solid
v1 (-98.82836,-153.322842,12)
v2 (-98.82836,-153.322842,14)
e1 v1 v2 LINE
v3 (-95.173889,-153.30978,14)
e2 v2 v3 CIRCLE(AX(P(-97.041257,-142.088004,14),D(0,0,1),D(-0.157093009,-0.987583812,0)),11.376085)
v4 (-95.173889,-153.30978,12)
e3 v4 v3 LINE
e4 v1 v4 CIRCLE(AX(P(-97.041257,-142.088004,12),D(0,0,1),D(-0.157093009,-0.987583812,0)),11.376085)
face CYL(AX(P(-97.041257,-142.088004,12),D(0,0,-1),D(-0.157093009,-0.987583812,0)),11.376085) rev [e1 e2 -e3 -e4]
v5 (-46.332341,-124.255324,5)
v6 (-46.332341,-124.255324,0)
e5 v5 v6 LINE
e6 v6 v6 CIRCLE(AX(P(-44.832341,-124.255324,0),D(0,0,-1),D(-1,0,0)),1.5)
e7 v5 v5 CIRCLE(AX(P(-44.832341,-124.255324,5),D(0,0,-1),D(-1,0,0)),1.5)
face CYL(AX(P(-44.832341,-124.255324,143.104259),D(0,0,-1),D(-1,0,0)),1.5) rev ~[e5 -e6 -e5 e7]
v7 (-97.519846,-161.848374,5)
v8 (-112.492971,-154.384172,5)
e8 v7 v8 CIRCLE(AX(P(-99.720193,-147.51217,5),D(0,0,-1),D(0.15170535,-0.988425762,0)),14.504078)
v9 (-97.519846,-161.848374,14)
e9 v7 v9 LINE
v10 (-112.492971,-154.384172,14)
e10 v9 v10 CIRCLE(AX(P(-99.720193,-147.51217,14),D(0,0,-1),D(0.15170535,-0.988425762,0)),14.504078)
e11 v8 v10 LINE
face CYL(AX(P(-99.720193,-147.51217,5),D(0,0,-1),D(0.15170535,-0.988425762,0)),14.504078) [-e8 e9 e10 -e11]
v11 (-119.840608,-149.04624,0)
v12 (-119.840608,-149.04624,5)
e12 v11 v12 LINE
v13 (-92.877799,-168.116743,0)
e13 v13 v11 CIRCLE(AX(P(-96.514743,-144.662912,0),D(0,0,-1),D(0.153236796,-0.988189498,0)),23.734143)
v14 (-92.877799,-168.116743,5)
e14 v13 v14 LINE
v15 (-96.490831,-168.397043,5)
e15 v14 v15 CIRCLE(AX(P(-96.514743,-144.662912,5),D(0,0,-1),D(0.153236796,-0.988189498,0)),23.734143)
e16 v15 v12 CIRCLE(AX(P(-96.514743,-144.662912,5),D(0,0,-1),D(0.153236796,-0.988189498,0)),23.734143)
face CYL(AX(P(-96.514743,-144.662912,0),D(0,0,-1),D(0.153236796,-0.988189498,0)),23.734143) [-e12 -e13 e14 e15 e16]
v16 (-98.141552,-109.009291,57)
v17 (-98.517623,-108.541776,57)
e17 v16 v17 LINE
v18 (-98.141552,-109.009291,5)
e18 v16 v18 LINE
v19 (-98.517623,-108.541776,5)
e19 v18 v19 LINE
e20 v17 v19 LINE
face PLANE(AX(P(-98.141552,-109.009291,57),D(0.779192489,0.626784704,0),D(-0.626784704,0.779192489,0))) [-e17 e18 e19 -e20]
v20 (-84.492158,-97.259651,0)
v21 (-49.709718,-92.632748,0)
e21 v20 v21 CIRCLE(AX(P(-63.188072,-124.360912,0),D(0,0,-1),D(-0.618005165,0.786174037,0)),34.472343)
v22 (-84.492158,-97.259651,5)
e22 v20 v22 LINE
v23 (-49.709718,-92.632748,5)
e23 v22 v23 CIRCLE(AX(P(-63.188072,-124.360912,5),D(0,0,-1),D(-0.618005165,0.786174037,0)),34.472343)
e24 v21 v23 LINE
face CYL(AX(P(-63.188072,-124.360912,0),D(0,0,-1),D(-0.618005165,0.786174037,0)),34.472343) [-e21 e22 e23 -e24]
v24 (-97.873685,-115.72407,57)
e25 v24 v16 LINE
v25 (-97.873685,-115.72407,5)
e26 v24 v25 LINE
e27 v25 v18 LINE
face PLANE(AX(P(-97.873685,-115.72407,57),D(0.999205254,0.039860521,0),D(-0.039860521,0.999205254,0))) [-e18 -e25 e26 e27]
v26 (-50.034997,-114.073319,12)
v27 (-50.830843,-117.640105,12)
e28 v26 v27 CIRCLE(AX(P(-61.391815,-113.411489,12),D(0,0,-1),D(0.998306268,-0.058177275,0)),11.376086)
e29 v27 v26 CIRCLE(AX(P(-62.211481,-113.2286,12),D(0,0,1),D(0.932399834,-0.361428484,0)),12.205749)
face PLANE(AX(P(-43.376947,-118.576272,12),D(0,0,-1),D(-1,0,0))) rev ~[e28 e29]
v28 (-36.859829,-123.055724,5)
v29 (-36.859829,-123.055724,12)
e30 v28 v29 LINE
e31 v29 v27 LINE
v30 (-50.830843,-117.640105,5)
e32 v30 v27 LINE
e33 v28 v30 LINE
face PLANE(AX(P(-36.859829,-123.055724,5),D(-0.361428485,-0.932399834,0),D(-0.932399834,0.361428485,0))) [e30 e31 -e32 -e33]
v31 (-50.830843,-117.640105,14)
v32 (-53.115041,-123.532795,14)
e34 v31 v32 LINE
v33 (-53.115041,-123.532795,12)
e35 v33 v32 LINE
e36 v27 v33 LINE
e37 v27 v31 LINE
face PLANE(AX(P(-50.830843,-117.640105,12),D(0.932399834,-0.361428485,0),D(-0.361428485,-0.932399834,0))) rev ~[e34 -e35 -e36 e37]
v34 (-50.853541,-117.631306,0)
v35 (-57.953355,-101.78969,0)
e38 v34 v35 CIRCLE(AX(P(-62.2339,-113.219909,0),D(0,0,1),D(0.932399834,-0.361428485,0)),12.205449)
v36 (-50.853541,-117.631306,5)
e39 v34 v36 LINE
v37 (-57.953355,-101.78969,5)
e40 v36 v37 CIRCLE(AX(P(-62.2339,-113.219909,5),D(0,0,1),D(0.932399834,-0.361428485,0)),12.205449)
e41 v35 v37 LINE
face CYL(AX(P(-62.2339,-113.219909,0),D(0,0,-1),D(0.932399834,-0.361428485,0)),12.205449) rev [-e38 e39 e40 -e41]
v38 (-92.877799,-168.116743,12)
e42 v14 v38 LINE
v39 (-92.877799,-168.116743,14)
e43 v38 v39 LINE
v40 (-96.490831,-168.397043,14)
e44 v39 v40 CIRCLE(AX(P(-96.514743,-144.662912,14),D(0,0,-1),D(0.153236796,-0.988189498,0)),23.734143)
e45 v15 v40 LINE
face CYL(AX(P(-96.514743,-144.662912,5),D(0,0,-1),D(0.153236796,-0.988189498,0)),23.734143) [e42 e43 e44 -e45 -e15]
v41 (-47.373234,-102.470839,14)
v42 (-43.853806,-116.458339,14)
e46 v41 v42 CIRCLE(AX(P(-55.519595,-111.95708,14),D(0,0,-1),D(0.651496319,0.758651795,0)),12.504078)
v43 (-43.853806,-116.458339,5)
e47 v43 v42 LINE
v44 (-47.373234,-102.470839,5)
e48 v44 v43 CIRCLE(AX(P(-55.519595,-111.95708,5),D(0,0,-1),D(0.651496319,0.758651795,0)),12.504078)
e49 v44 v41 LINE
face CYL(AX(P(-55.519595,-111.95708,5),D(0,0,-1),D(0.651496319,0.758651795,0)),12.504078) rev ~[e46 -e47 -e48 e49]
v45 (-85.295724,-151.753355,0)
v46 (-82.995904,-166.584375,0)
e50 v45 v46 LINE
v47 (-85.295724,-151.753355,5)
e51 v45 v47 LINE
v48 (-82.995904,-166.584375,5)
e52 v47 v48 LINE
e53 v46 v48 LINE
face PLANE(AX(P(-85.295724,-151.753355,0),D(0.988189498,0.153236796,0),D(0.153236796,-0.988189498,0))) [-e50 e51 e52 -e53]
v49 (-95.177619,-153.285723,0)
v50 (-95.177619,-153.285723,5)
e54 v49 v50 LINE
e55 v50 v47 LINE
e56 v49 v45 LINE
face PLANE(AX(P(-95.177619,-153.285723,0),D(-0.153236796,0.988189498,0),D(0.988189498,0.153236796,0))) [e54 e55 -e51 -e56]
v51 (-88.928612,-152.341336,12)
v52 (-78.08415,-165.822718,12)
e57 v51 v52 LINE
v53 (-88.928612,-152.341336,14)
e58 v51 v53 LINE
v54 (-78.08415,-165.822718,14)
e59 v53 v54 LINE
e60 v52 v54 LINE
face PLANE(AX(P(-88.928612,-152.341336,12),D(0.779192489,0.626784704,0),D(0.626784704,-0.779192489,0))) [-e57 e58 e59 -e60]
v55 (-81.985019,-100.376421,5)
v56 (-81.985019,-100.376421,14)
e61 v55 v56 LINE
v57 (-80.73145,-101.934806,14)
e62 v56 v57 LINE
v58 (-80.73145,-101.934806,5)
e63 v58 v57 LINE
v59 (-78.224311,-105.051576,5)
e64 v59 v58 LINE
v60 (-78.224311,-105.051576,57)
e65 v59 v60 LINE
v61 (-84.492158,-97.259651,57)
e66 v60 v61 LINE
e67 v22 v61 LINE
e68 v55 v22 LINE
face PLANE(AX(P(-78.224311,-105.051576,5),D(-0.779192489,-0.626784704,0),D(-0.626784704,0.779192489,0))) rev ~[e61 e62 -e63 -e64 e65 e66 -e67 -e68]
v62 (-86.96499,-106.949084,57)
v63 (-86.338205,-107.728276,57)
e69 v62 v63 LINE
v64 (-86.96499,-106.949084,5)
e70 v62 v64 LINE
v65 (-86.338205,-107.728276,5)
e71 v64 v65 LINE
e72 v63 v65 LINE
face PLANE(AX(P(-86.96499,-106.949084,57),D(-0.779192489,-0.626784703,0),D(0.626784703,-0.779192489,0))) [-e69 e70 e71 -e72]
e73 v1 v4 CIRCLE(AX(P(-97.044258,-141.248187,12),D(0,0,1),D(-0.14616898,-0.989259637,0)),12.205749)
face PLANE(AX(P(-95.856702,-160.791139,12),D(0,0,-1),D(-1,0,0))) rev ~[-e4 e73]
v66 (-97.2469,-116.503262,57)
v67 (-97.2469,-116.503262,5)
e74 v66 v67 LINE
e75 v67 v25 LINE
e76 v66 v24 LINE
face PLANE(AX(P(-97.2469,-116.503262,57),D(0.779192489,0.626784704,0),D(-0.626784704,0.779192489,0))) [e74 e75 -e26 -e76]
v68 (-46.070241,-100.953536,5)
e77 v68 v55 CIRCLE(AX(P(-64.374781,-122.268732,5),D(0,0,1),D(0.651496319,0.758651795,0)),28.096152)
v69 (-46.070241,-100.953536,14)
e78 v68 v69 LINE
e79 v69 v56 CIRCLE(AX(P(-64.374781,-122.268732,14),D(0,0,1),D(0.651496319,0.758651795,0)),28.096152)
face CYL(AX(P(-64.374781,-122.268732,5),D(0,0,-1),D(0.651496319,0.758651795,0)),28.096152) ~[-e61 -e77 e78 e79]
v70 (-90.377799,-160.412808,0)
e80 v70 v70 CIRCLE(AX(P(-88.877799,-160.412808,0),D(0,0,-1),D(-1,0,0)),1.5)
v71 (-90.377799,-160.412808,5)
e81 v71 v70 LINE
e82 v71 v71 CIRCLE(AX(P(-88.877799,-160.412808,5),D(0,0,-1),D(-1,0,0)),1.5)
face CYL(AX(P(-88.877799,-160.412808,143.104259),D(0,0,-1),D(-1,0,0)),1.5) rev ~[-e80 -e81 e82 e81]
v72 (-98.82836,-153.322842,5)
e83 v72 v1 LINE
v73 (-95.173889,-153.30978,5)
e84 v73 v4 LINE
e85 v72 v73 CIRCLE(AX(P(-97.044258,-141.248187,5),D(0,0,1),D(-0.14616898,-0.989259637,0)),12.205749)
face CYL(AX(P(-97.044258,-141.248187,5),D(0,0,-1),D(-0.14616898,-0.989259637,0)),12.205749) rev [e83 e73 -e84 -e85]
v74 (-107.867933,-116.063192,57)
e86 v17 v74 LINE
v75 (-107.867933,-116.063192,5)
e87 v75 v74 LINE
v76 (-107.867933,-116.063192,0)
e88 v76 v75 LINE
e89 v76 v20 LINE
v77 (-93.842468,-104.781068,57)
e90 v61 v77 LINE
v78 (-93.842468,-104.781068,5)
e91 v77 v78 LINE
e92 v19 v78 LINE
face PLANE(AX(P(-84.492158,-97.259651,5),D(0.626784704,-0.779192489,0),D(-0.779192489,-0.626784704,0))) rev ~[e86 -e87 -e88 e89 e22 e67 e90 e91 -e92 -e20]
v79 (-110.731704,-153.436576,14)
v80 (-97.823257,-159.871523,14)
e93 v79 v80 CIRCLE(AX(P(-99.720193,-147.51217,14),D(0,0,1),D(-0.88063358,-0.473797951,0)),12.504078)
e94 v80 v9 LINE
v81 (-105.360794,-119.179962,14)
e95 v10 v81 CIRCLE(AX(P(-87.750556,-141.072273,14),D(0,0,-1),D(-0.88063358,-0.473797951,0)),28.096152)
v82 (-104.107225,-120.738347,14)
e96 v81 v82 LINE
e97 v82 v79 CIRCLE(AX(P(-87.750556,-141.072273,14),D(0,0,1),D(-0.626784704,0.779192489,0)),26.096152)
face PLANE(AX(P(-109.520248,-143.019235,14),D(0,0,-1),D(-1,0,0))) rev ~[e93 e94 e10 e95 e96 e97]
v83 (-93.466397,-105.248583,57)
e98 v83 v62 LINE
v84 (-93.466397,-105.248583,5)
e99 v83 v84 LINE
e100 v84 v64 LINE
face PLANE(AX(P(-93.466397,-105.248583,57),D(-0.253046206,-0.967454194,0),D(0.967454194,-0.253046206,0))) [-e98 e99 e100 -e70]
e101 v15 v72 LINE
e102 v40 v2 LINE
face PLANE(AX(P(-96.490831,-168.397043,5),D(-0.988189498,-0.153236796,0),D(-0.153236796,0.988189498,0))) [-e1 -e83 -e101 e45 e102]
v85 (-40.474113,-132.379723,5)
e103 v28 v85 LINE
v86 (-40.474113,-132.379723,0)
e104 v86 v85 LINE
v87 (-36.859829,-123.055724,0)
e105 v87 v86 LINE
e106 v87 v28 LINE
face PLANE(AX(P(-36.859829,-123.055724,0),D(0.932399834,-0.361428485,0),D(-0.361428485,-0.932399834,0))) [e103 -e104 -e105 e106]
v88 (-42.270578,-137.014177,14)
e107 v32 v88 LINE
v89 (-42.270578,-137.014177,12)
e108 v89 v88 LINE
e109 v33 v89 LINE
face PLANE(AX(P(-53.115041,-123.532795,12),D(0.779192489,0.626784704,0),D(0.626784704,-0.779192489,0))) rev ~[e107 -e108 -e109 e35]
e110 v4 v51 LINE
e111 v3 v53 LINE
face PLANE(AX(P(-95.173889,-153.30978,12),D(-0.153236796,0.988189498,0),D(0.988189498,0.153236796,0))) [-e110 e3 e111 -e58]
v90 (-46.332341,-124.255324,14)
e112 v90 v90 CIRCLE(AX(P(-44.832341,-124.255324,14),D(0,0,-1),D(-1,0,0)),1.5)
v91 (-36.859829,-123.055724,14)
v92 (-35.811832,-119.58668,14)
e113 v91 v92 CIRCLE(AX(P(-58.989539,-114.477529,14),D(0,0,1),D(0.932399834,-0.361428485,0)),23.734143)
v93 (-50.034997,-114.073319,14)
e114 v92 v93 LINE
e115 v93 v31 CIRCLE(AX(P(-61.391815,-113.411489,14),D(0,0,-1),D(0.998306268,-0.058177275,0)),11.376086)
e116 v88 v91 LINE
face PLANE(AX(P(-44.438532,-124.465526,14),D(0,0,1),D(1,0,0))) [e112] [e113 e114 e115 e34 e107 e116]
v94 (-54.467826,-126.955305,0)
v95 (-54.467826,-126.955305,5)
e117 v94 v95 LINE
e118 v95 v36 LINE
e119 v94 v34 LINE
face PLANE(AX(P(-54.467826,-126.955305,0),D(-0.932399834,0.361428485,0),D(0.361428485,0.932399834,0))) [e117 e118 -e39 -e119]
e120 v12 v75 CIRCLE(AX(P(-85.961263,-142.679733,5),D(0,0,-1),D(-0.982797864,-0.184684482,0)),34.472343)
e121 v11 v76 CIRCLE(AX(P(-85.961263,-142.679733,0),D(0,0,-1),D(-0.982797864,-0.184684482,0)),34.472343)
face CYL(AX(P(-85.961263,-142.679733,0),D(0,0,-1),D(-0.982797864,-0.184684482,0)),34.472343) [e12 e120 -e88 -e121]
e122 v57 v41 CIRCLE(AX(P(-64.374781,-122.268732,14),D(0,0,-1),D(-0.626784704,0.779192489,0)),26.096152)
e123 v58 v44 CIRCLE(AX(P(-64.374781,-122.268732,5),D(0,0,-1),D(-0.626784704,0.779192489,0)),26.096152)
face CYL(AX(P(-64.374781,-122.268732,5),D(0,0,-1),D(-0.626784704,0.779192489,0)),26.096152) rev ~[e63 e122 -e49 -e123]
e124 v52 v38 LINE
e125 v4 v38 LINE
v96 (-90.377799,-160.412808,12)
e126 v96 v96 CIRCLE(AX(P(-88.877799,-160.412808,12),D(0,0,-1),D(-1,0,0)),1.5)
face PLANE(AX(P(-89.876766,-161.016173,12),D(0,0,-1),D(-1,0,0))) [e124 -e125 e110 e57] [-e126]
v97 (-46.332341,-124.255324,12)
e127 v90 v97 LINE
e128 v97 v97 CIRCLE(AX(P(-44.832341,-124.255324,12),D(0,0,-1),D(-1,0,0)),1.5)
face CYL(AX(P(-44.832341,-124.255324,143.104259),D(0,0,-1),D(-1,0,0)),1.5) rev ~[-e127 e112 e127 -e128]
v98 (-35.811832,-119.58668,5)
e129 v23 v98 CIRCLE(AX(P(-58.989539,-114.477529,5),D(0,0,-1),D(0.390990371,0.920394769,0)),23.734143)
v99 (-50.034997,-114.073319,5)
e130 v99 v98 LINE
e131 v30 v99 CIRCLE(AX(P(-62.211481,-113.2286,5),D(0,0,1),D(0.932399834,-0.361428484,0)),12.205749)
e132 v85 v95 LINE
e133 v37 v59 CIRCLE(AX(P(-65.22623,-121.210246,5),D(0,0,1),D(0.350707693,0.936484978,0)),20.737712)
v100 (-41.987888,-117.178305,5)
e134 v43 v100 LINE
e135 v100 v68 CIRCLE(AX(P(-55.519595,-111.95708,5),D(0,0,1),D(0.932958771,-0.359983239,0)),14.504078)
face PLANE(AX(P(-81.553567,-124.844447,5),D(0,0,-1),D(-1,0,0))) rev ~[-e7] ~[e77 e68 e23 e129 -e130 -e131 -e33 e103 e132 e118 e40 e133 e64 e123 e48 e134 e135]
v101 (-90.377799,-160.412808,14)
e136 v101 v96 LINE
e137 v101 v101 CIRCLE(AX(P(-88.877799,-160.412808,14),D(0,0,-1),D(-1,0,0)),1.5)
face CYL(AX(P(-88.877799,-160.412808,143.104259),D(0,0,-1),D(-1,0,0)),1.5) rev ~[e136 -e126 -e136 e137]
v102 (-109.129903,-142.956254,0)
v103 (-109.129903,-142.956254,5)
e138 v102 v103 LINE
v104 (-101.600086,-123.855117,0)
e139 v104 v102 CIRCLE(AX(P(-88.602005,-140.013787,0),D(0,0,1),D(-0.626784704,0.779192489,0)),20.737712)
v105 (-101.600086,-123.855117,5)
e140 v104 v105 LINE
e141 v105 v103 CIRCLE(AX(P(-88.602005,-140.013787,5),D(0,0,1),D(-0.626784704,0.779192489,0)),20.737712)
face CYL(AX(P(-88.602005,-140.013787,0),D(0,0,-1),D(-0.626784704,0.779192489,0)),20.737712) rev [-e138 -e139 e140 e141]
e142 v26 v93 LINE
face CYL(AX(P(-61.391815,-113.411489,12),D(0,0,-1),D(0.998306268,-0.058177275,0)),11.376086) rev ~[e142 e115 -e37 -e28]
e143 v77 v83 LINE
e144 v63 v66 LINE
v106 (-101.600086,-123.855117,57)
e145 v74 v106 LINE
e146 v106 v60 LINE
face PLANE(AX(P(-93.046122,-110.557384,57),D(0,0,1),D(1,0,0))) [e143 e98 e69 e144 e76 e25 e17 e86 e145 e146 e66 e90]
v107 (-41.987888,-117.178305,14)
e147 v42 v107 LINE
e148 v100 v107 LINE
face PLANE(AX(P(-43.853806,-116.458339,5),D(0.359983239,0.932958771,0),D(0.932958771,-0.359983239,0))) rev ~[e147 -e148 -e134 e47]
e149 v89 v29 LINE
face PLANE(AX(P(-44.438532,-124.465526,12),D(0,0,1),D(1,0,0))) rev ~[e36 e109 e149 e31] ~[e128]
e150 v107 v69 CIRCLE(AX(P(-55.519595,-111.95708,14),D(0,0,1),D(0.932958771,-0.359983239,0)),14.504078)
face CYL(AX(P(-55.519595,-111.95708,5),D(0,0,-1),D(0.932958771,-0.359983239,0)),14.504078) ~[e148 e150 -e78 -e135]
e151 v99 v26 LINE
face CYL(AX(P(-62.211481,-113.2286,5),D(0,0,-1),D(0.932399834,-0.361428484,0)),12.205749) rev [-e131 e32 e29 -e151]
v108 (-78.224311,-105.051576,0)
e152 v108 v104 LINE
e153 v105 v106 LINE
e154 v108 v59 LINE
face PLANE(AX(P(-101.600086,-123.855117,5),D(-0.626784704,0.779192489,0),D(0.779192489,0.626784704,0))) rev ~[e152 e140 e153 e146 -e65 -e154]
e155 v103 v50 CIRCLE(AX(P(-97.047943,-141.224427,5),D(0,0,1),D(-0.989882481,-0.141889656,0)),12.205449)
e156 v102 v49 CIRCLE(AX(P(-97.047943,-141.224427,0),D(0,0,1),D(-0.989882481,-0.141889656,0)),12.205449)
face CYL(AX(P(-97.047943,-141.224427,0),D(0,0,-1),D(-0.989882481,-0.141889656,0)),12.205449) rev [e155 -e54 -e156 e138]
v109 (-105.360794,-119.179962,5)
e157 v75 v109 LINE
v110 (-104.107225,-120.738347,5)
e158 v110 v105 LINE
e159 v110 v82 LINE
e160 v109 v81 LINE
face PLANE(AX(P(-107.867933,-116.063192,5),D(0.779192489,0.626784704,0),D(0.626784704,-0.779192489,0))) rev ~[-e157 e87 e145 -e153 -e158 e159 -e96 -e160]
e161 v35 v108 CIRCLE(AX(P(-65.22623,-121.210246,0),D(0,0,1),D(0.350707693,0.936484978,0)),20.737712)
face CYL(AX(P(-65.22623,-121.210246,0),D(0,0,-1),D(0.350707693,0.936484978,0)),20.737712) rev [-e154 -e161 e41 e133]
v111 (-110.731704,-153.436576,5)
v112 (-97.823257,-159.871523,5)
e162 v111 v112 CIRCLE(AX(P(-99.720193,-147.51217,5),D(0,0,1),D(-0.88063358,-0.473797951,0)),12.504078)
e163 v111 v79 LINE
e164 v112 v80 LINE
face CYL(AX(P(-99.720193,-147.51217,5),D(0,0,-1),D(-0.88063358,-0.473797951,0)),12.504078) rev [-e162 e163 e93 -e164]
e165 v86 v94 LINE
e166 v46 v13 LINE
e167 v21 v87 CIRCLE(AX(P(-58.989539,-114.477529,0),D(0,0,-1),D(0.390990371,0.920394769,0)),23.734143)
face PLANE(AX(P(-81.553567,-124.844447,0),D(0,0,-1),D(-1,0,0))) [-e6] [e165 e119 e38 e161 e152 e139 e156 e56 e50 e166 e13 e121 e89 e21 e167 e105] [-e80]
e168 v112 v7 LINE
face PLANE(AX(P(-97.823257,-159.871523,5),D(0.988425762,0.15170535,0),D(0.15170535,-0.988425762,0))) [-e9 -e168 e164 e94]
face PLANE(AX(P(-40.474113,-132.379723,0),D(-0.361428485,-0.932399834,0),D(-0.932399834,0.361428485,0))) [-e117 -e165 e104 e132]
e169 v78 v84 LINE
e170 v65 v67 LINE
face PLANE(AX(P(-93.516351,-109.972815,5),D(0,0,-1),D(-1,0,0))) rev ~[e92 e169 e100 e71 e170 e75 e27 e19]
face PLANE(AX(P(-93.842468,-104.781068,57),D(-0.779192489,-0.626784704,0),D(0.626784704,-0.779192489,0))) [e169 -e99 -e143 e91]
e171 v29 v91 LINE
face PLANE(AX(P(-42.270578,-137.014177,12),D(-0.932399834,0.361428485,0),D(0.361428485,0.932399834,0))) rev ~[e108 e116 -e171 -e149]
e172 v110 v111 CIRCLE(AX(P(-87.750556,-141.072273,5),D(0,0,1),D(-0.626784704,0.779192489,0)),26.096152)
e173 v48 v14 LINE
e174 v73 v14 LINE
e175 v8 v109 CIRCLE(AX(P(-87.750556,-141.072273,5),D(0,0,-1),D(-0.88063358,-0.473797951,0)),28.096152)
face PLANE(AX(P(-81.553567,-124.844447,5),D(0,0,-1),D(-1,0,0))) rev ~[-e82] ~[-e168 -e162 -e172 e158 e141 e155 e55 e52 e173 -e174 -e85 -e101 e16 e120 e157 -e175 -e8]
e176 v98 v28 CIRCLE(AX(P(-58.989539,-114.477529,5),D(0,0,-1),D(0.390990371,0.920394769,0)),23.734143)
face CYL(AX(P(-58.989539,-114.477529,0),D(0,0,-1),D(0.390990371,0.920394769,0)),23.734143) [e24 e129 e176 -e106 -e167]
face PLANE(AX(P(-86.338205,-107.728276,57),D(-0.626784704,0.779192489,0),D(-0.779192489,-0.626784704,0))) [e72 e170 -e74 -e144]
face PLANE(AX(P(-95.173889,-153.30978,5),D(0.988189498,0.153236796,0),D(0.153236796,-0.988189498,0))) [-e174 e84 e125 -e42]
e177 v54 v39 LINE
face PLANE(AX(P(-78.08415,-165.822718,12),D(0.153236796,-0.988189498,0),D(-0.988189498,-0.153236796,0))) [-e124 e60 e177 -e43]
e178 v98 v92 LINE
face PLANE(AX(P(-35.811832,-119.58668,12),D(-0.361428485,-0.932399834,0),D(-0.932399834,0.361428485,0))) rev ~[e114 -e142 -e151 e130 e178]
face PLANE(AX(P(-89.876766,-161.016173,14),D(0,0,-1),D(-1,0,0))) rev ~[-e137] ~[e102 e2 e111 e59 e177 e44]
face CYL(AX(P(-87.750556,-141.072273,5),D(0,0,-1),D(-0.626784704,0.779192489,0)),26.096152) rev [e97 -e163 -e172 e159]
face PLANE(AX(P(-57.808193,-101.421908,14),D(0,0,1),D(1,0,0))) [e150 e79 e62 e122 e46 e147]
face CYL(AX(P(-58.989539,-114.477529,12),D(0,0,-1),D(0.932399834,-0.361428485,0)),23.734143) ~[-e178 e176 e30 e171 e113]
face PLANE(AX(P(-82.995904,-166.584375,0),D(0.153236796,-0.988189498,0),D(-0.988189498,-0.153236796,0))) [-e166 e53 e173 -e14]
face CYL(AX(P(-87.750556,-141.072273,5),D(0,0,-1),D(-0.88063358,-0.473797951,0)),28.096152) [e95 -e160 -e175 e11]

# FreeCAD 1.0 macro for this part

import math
import FreeCAD as App
import Part
import Sketcher
Q = App.Units.Quantity

doc = App.newDocument("Part")
params = doc.addObject("Spreadsheet::Sheet", "Params")
for row, (alias, value) in enumerate([
    ("sketch1_length", "10 mm"),
    ("sketch1_length2", "10 mm"),
    ("sketch1_length3", "30 mm"),
    ("sketch1_length4", "10 mm"),
    ("sketch1_length5", "10 mm"),
    ("pad1_length", "5 mm"),
    ("pad2_length", "7 mm"),
    ("pad3_length", "2 mm"),
    ("sketch4_length", "30 mm"),
    ("sketch4_length2", "10 mm"),
    ("pad4_length", "52 mm"),
    ("sketch5_length", "1 mm"),
    ("sketch5_length2", "14 mm"),
    ("sketch5_length3", "6 mm"),
    ("sketch5_length4", "0.6 mm"),
    ("pocket1_length", "52 mm"),
    ("sketch6_length", "2 mm"),
    ("pad5_length", "9 mm"),
    ("sketch7_diameter", "3 mm"),
    ("hole_diameter", "3 mm"),
], start=1):
    params.set(f"A{row}", alias)
    params.set(f"B{row}", "=" + value)
    params.setAlias(f"B{row}", alias)

body = doc.addObject("PartDesign::Body", "Body")

# Sketch on XY plane
sketch1 = body.newObject("Sketcher::SketchObject", "Sketch")
sketch1.AttachmentSupport = (doc.getObject("XY_Plane"), [""])
sketch1.MapMode = "FlatFace"
sketch1.addGeometry([
    Part.LineSegment(App.Vector(-92.877799, -168.116743, 0), App.Vector(-82.995904, -166.584375, 0)),  # 0
    Part.LineSegment(App.Vector(-82.995904, -166.584375, 0), App.Vector(-85.295724, -151.753355, 0)),  # 1
    Part.LineSegment(App.Vector(-85.295724, -151.753355, 0), App.Vector(-95.177619, -153.285723, 0)),  # 2
    Part.ArcOfCircle(Part.Circle(App.Vector(-97.047943, -141.224427, 0), App.Vector(0, 0, 1), 12.205449), math.radians(-171.842793), math.radians(-81.18545)),  # 3
    Part.ArcOfCircle(Part.Circle(App.Vector(-88.602005, -140.013787, 0), App.Vector(0, 0, 1), 20.737712), math.radians(128.8133), math.radians(188.157207)),  # 4
    Part.LineSegment(App.Vector(-101.600086, -123.855117, 0), App.Vector(-78.224311, -105.051576, 0)),  # 5
    Part.ArcOfCircle(Part.Circle(App.Vector(-65.22623, -121.210246, 0), App.Vector(0, 0, 1), 20.737712), math.radians(69.469393), math.radians(128.8133)),  # 6
    Part.ArcOfCircle(Part.Circle(App.Vector(-62.2339, -113.219909, 0), App.Vector(0, 0, 1), 12.205449), math.radians(-21.18795), math.radians(69.469393)),  # 7
    Part.LineSegment(App.Vector(-50.853541, -117.631306, 0), App.Vector(-54.467826, -126.955305, 0)),  # 8
    Part.LineSegment(App.Vector(-54.467826, -126.955305, 0), App.Vector(-40.474113, -132.379723, 0)),  # 9
    Part.LineSegment(App.Vector(-40.474113, -132.379723, 0), App.Vector(-36.859829, -123.055724, 0)),  # 10
    Part.ArcOfCircle(Part.Circle(App.Vector(-58.989539, -114.477529, 0), App.Vector(0, 0, 1), 23.734143), math.radians(-21.18795), math.radians(66.983863)),  # 11
    Part.ArcOfCircle(Part.Circle(App.Vector(-63.188072, -124.360912, 0), App.Vector(0, 0, 1), 34.472343), math.radians(66.983863), math.radians(128.170607)),  # 12
    Part.LineSegment(App.Vector(-84.492158, -97.259651, 0), App.Vector(-107.867933, -116.063192, 0)),  # 13
    Part.ArcOfCircle(Part.Circle(App.Vector(-85.961263, -142.679733, 0), App.Vector(0, 0, 1), 34.472343), math.radians(129.455993), math.radians(190.642738)),  # 14
    Part.ArcOfCircle(Part.Circle(App.Vector(-96.514743, -144.662912, 0), App.Vector(0, 0, 1), 23.734143), math.radians(-169.357262), math.radians(-81.18545)),  # 15
], False)
sketch1.addConstraint([
    Sketcher.Constraint("Coincident", 0, 2, 1, 1),
    Sketcher.Constraint("Coincident", 1, 2, 2, 1),
    Sketcher.Constraint("Coincident", 2, 2, 3, 2),
    Sketcher.Constraint("Coincident", 3, 1, 4, 2),
    Sketcher.Constraint("Coincident", 4, 1, 5, 1),
    Sketcher.Constraint("Coincident", 5, 2, 6, 2),
    Sketcher.Constraint("Coincident", 6, 1, 7, 2),
    Sketcher.Constraint("Coincident", 7, 1, 8, 1),
    Sketcher.Constraint("Coincident", 8, 2, 9, 1),
    Sketcher.Constraint("Coincident", 9, 2, 10, 1),
    Sketcher.Constraint("Coincident", 10, 2, 11, 1),
    Sketcher.Constraint("Coincident", 11, 2, 12, 1),
    Sketcher.Constraint("Coincident", 12, 2, 13, 1),
    Sketcher.Constraint("Coincident", 13, 2, 14, 1),
    Sketcher.Constraint("Coincident", 14, 2, 15, 1),
    Sketcher.Constraint("Coincident", 15, 2, 0, 1),
    Sketcher.Constraint("Distance", 0, Q("10 mm")),
    Sketcher.Constraint("Distance", 2, Q("10 mm")),
    Sketcher.Constraint("Distance", 5, Q("30 mm")),
    Sketcher.Constraint("Distance", 8, Q("10 mm")),
    Sketcher.Constraint("Distance", 10, Q("10 mm")),
    Sketcher.Constraint("Distance", 13, Q("30 mm")),
    Sketcher.Constraint("Radius", 3, Q("12.205449 mm")),
    Sketcher.Constraint("Radius", 7, Q("12.205449 mm")),
    Sketcher.Constraint("Radius", 4, Q("20.737712 mm")),
    Sketcher.Constraint("Radius", 6, Q("20.737712 mm")),
    Sketcher.Constraint("Radius", 11, Q("23.734143 mm")),
    Sketcher.Constraint("Radius", 12, Q("34.472343 mm")),
    Sketcher.Constraint("Radius", 14, Q("34.472343 mm")),
    Sketcher.Constraint("Radius", 15, Q("23.734143 mm")),
    Sketcher.Constraint("DistanceY", 15, 3, 12, 3, Q("20.302 mm")),
    Sketcher.Constraint("DistanceX", 11, 3, 7, 1, Q("8.135998 mm")),
    Sketcher.Constraint("DistanceY", 8, 2, 7, 1, Q("9.323998 mm")),
    Sketcher.Constraint("DistanceY", 9, 2, 10, 2, Q("9.323998 mm")),
    Sketcher.Constraint("DistanceX", 7, 3, -1, 1, Q("62.2339 mm")),
    Sketcher.Constraint("DistanceX", 15, 2, -1, 1, Q("92.877799 mm")),
    Sketcher.Constraint("DistanceX", 3, 3, 15, 3, Q("0.5332 mm")),
    Sketcher.Constraint("DistanceX", 4, 3, 0, 2, Q("5.606101 mm")),
    Sketcher.Constraint("DistanceX", 3, 1, 4, 3, Q("20.527898 mm")),
    Sketcher.Constraint("DistanceX", 6, 3, -1, 1, Q("65.22623 mm")),
    Sketcher.Constraint("DistanceY", 7, 3, -1, 1, Q("113.219909 mm")),
    Sketcher.Constraint("DistanceX", 11, 3, -1, 1, Q("58.989539 mm")),
    Sketcher.Constraint("DistanceY", 11, 3, -1, 1, Q("114.477529 mm")),
    Sketcher.Constraint("DistanceY", 15, 3, -1, 1, Q("144.662912 mm")),
    Sketcher.Constraint("DistanceX", 2, 2, -1, 1, Q("95.177619 mm")),
    Sketcher.Constraint("DistanceX", 5, 2, -1, 1, Q("78.224311 mm")),
    Sketcher.Constraint("DistanceY", 6, 1, -1, 1, Q("101.78969 mm")),
    Sketcher.Constraint("DistanceX", 10, 2, -1, 1, Q("36.859829 mm")),
    Sketcher.Constraint("DistanceX", 11, 2, -1, 1, Q("49.709718 mm")),
    Sketcher.Constraint("DistanceX", 12, 2, -1, 1, Q("84.492158 mm")),
    Sketcher.Constraint("DistanceX", 14, 2, -1, 1, Q("119.840608 mm")),
    Sketcher.Constraint("DistanceY", 14, 2, -1, 1, Q("149.04624 mm")),
    Sketcher.Constraint("DistanceY", 3, 3, 4, 3, Q("1.21064 mm")),
    Sketcher.Constraint("DistanceY", 4, 3, 6, 3, Q("18.803541 mm")),
    Sketcher.Constraint("DistanceX", 3, 3, 14, 3, Q("11.08668 mm")),
    Sketcher.Constraint("DistanceX", 14, 3, 1, 2, Q("0.665539 mm")),
])
sketch1.setExpression("Constraints[16]", "Params.sketch1_length")
sketch1.setExpression("Constraints[17]", "Params.sketch1_length2")
sketch1.setExpression("Constraints[18]", "Params.sketch1_length3")
sketch1.setExpression("Constraints[19]", "Params.sketch1_length4")
sketch1.setExpression("Constraints[20]", "Params.sketch1_length5")
pad1 = body.newObject("PartDesign::Pad", "Pad")
pad1.Profile = sketch1
pad1.setExpression("Length", "Params.pad1_length")

# Sketch on XY plane
sketch2 = body.newObject("Sketcher::SketchObject", "Sketch001")
sketch2.AttachmentSupport = (doc.getObject("XY_Plane"), [""])
sketch2.MapMode = "FlatFace"
sketch2.AttachmentOffset = App.Placement(App.Vector(0, 0, 5), App.Rotation())
sketch2.addGeometry([
    Part.LineSegment(App.Vector(-50.8, -117.6, 0), App.Vector(-36.9, -123.1, 0)),  # 0
    Part.ArcOfCircle(Part.Circle(App.Vector(-59, -114.5, 0), App.Vector(0, 0, 1), 23.7), math.radians(-21.19), math.radians(-12.43)),  # 1
    Part.LineSegment(App.Vector(-35.8, -119.6, 0), App.Vector(-50, -114.1, 0)),  # 2
    Part.ArcOfCircle(Part.Circle(App.Vector(-62.2, -113.2, 0), App.Vector(0, 0, 1), 12.2), math.radians(-21.19), math.radians(-3.97)),  # 3
    Part.LineSegment(App.Vector(-98.8, -153.3, 0), App.Vector(-96.5, -168.4, 0)),  # 4
    Part.ArcOfCircle(Part.Circle(App.Vector(-96.5, -144.7, 0), App.Vector(0, 0, 1), 23.7), math.radians(-89.94), math.radians(-81.19)),  # 5
    Part.LineSegment(App.Vector(-92.9, -168.1, 0), App.Vector(-95.2, -153.3, 0)),  # 6
    Part.ArcOfCircle(Part.Circle(App.Vector(-97, -141.2, 0), App.Vector(0, 0, 1), 12.2), math.radians(-98.4), math.radians(-81.19)),  # 7
], False)
sketch2.addConstraint([
    Sketcher.Constraint("Coincident", 0, 2, 1, 1),
    Sketcher.Constraint("Coincident", 1, 2, 2, 1),
    Sketcher.Constraint("Coincident", 2, 2, 3, 2),
    Sketcher.Constraint("Coincident", 3, 1, 0, 1),
    Sketcher.Constraint("Coincident", 4, 2, 5, 1),
    Sketcher.Constraint("Coincident", 5, 2, 6, 1),
    Sketcher.Constraint("Coincident", 6, 2, 7, 2),
    Sketcher.Constraint("Coincident", 7, 1, 4, 1),
    Sketcher.Constraint("Equal", 1, 5),
    Sketcher.Constraint("Equal", 3, 7),
    Sketcher.Constraint("Parallel", 0, 2),
    Sketcher.Constraint("Parallel", 4, 6),
    Sketcher.Constraint("Equal", 2, 4),
    Sketcher.Constraint("Equal", 0, 6),
    Sketcher.Constraint("Radius", 3, Q("12.205749 mm")),
    Sketcher.Constraint("Radius", 1, Q("23.734143 mm")),
    Sketcher.Constraint("DistanceY", 3, 3, -1, 1, Q("113.2286 mm")),
    Sketcher.Constraint("DistanceX", 5, 2, -1, 1, Q("92.877799 mm")),
    Sketcher.Constraint("DistanceY", 4, 2, 5, 2, Q("0.2803 mm")),
    Sketcher.Constraint("DistanceX", 7, 1, 7, 3, Q("1.784102 mm")),
    Sketcher.Constraint("DistanceY", 4, 2, 7, 1, Q("15.074201 mm")),
    Sketcher.Constraint("Distance", 0, Q("14.98393 mm")),
    Sketcher.Constraint("DistanceX", 1, 3, -1, 1, Q("58.989539 mm")),
    Sketcher.Constraint("DistanceY", 1, 3, -1, 1, Q("114.477529 mm")),
    Sketcher.Constraint("DistanceY", 5, 3, -1, 1, Q("144.662912 mm")),
    Sketcher.Constraint("DistanceX", 0, 2, -1, 1, Q("36.859829 mm")),
    Sketcher.Constraint("DistanceY", 1, 2, -1, 1, Q("119.58668 mm")),
    Sketcher.Constraint("DistanceY", 2, 2, -1, 1, Q("114.073319 mm")),
])
pad2 = body.newObject("PartDesign::Pad", "Pad001")
pad2.Profile = sketch2
pad2.setExpression("Length", "Params.pad2_length")

# Sketch on XY plane
sketch3 = body.newObject("Sketcher::SketchObject", "Sketch002")
sketch3.AttachmentSupport = (doc.getObject("XY_Plane"), [""])
sketch3.MapMode = "FlatFace"
sketch3.AttachmentOffset = App.Placement(App.Vector(0, 0, 12), App.Rotation())
sketch3.addGeometry([
    Part.LineSegment(App.Vector(-42.3, -137, 0), App.Vector(-36.9, -123.1, 0)),  # 0
    Part.ArcOfCircle(Part.Circle(App.Vector(-59, -114.5, 0), App.Vector(0, 0, 1), 23.7), math.radians(-21.19), math.radians(-12.43)),  # 1
    Part.LineSegment(App.Vector(-35.8, -119.6, 0), App.Vector(-50, -114.1, 0)),  # 2
    Part.ArcOfCircle(Part.Circle(App.Vector(-61.4, -113.4, 0), App.Vector(0, 0, 1), 11.4), math.radians(-21.82), math.radians(-3.34)),  # 3
    Part.LineSegment(App.Vector(-50.8, -117.6, 0), App.Vector(-53.1, -123.5, 0)),  # 4
    Part.LineSegment(App.Vector(-53.1, -123.5, 0), App.Vector(-42.3, -137, 0)),  # 5
    Part.LineSegment(App.Vector(-98.8, -153.3, 0), App.Vector(-96.5, -168.4, 0)),  # 6
    Part.ArcOfCircle(Part.Circle(App.Vector(-96.5, -144.7, 0), App.Vector(0, 0, 1), 23.7), math.radians(-89.94), math.radians(-81.19)),  # 7
    Part.LineSegment(App.Vector(-92.9, -168.1, 0), App.Vector(-78.1, -165.8, 0)),  # 8
    Part.LineSegment(App.Vector(-78.1, -165.8, 0), App.Vector(-88.9, -152.3, 0)),  # 9
    Part.LineSegment(App.Vector(-88.9, -152.3, 0), App.Vector(-95.2, -153.3, 0)),  # 10
    Part.ArcOfCircle(Part.Circle(App.Vector(-97, -142.1, 0), App.Vector(0, 0, 1), 11.4), math.radians(-99.04), math.radians(-80.55)),  # 11
], False)
sketch3.addConstraint([
    Sketcher.Constraint("Tangent", 0, 2, 1, 1),
    Sketcher.Constraint("Coincident", 1, 2, 2, 1),
    Sketcher.Constraint("Coincident", 2, 2, 3, 2),
    Sketcher.Constraint("Coincident", 3, 1, 4, 1),
    Sketcher.Constraint("Coincident", 4, 2, 5, 1),
    Sketcher.Constraint("Coincident", 5, 2, 0, 1),
    Sketcher.Constraint("Coincident", 6, 2, 7, 1),
    Sketcher.Constraint("Tangent", 7, 2, 8, 1),
    Sketcher.Constraint("Coincident", 8, 2, 9, 1),
    Sketcher.Constraint("Coincident", 9, 2, 10, 1),
    Sketcher.Constraint("Coincident", 10, 2, 11, 2),
    Sketcher.Constraint("Coincident", 11, 1, 6, 1),
    Sketcher.Constraint("Equal", 1, 7),
    Sketcher.Constraint("Equal", 3, 11),
    Sketcher.Constraint("Perpendicular", 0, 2),
    Sketcher.Constraint("Perpendicular", 2, 4),
    Sketcher.Constraint("Perpendicular", 6, 8),
    Sketcher.Constraint("Parallel", 5, 9),
    Sketcher.Constraint("Parallel", 8, 10),
    Sketcher.Constraint("Equal", 2, 6),
    Sketcher.Constraint("Equal", 0, 8),
    Sketcher.Constraint("Equal", 5, 9),
    Sketcher.Constraint("Equal", 4, 10),
    Sketcher.Constraint("Radius", 1, Q("23.734143 mm")),
    Sketcher.Constraint("Radius", 3, Q("11.376086 mm")),
    Sketcher.Constraint("DistanceX", 7, 2, -1, 1, Q("92.877799 mm")),
    Sketcher.Constraint("DistanceX", 4, 2, 3, 1, Q("2.284198 mm")),
    Sketcher.Constraint("DistanceX", 1, 3, 4, 2, Q("5.874498 mm")),
    Sketcher.Constraint("DistanceY", 6, 2, 7, 2, Q("0.2803 mm")),
    Sketcher.Constraint("DistanceY", 6, 2, 11, 1, Q("15.074201 mm")),
    Sketcher.Constraint("DistanceX", 1, 3, -1, 1, Q("58.989539 mm")),
    Sketcher.Constraint("DistanceY", 1, 3, -1, 1, Q("114.477529 mm")),
    Sketcher.Constraint("DistanceY", 3, 3, -1, 1, Q("113.411489 mm")),
    Sketcher.Constraint("DistanceY", 7, 3, -1, 1, Q("144.662912 mm")),
    Sketcher.Constraint("DistanceX", 0, 2, -1, 1, Q("36.859829 mm")),
    Sketcher.Constraint("DistanceY", 1, 2, -1, 1, Q("119.58668 mm")),
    Sketcher.Constraint("DistanceX", 5, 2, -1, 1, Q("42.270578 mm")),
    Sketcher.Constraint("DistanceX", 6, 2, -1, 1, Q("96.490831 mm")),
])
pad3 = body.newObject("PartDesign::Pad", "Pad002")
pad3.Profile = sketch3
pad3.setExpression("Length", "Params.pad3_length")

# Sketch on XY plane
sketch4 = body.newObject("Sketcher::SketchObject", "Sketch003")
sketch4.AttachmentSupport = (doc.getObject("XY_Plane"), [""])
sketch4.MapMode = "FlatFace"
sketch4.AttachmentOffset = App.Placement(App.Vector(0, 0, 5), App.Rotation())
sketch4.addGeometry([
    Part.LineSegment(App.Vector(-102, -124, 0), App.Vector(-78, -105, 0)),
    Part.LineSegment(App.Vector(-78, -105, 0), App.Vector(-84, -97, 0)),
    Part.LineSegment(App.Vector(-84, -97, 0), App.Vector(-108, -116, 0)),
    Part.LineSegment(App.Vector(-108, -116, 0), App.Vector(-102, -124, 0)),
], False)
sketch4.addConstraint([
    Sketcher.Constraint("Coincident", 0, 2, 1, 1),
    Sketcher.Constraint("Coincident", 1, 2, 2, 1),
    Sketcher.Constraint("Coincident", 2, 2, 3, 1),
    Sketcher.Constraint("Coincident", 3, 2, 0, 1),
    Sketcher.Constraint("Perpendicular", 0, 1),
    Sketcher.Constraint("Perpendicular", 1, 2),
    Sketcher.Constraint("Perpendicular", 2, 3),
    Sketcher.Constraint("Distance", 0, Q("30 mm")),
    Sketcher.Constraint("Distance", 1, Q("10 mm")),
    Sketcher.Constraint("DistanceX", 0, 2, -1, 1, Q("78.224311 mm")),
    Sketcher.Constraint("DistanceX", 1, 2, -1, 1, Q("84.492158 mm")),
    Sketcher.Constraint("DistanceY", 1, 2, -1, 1, Q("97.259651 mm")),
])
sketch4.setExpression("Constraints[7]", "Params.sketch4_length")
sketch4.setExpression("Constraints[8]", "Params.sketch4_length2")
pad4 = body.newObject("PartDesign::Pad", "Pad003")
pad4.Profile = sketch4
pad4.setExpression("Length", "Params.pad4_length")

# Sketch on XY plane
sketch5 = body.newObject("Sketcher::SketchObject", "Sketch004")
sketch5.AttachmentSupport = (doc.getObject("XY_Plane"), [""])
sketch5.MapMode = "FlatFace"
sketch5.AttachmentOffset = App.Placement(App.Vector(0, 0, 57), App.Rotation())
sketch5.addGeometry([
    Part.LineSegment(App.Vector(-97.9, -115.7, 0), App.Vector(-97.2, -116.5, 0)),  # 0
    Part.LineSegment(App.Vector(-97.2, -116.5, 0), App.Vector(-86.3, -107.7, 0)),  # 1
    Part.LineSegment(App.Vector(-86.3, -107.7, 0), App.Vector(-87, -106.9, 0)),  # 2
    Part.LineSegment(App.Vector(-87, -106.9, 0), App.Vector(-93.5, -105.2, 0)),  # 3
    Part.LineSegment(App.Vector(-93.5, -105.2, 0), App.Vector(-93.8, -104.8, 0)),  # 4
    Part.LineSegment(App.Vector(-93.8, -104.8, 0), App.Vector(-98.5, -108.5, 0)),  # 5
    Part.LineSegment(App.Vector(-98.5, -108.5, 0), App.Vector(-98.1, -109, 0)),  # 6
    Part.LineSegment(App.Vector(-98.1, -109, 0), App.Vector(-97.9, -115.7, 0)),  # 7
], False)
sketch5.addConstraint([
    Sketcher.Constraint("Coincident", 0, 2, 1, 1),
    Sketcher.Constraint("Coincident", 1, 2, 2, 1),
    Sketcher.Constraint("Coincident", 2, 2, 3, 1),
    Sketcher.Constraint("Coincident", 3, 2, 4, 1),
    Sketcher.Constraint("Coincident", 4, 2, 5, 1),
    Sketcher.Constraint("Coincident", 5, 2, 6, 1),
    Sketcher.Constraint("Coincident", 6, 2, 7, 1),
    Sketcher.Constraint("Coincident", 7, 2, 0, 1),
    Sketcher.Constraint("Perpendicular", 0, 1),
    Sketcher.Constraint("Perpendicular", 1, 2),
    Sketcher.Constraint("Parallel", 2, 4),
    Sketcher.Constraint("Perpendicular", 4, 5),
    Sketcher.Constraint("Perpendicular", 5, 6),
    Sketcher.Constraint("Equal", 0, 2),
    Sketcher.Constraint("Equal", 4, 6),
    Sketcher.Constraint("Equal", 3, 7),
    Sketcher.Constraint("Distance", 0, Q("1 mm")),
    Sketcher.Constraint("Distance", 1, Q("14 mm")),
    Sketcher.Constraint("Distance", 5, Q("6 mm")),
    Sketcher.Constraint("Distance", 4, Q("0.6 mm")),
    Sketcher.Constraint("DistanceY", 7, 2, 4, 2, Q("10.943002 mm")),
    Sketcher.Constraint("DistanceX", 0, 2, -1, 1, Q("97.2469 mm")),
    Sketcher.Constraint("DistanceY", 2, 2, 3, 2, Q("1.700501 mm")),
    Sketcher.Constraint("DistanceY", 6, 2, -1, 1, Q("109.009291 mm")),
])
sketch5.setExpression("Constraints[16]", "Params.sketch5_length")
sketch5.setExpression("Constraints[17]", "Params.sketch5_length2")
sketch5.setExpression("Constraints[18]", "Params.sketch5_length3")
sketch5.setExpression("Constraints[19]", "Params.sketch5_length4")
pocket1 = body.newObject("PartDesign::Pocket", "Pocket")
pocket1.Profile = sketch5
pocket1.setExpression("Length", "Params.pocket1_length")

# Sketch on XY plane
sketch6 = body.newObject("Sketcher::SketchObject", "Sketch005")
sketch6.AttachmentSupport = (doc.getObject("XY_Plane"), [""])
sketch6.MapMode = "FlatFace"
sketch6.AttachmentOffset = App.Placement(App.Vector(0, 0, 5), App.Rotation())
sketch6.addGeometry([
    Part.LineSegment(App.Vector(-104.1, -120.7, 0), App.Vector(-105.4, -119.2, 0)),  # 0
    Part.ArcOfCircle(Part.Circle(App.Vector(-87.8, -141.1, 0), App.Vector(0, 0, 1), 28.1), math.radians(129), math.radians(208)),  # 1
    Part.ArcOfCircle(Part.Circle(App.Vector(-99.7, -147.5, 0), App.Vector(0, 0, 1), 14.5), math.radians(-152), math.radians(-81)),  # 2
    Part.LineSegment(App.Vector(-97.5, -161.8, 0), App.Vector(-97.8, -159.9, 0)),  # 3
    Part.ArcOfCircle(Part.Circle(App.Vector(-99.7, -147.5, 0), App.Vector(0, 0, 1), 12.5), math.radians(-152), math.radians(-81)),  # 4
    Part.ArcOfCircle(Part.Circle(App.Vector(-87.8, -141.1, 0), App.Vector(0, 0, 1), 26.1), math.radians(129), math.radians(208)),  # 5
    Part.LineSegment(App.Vector(-43.9, -116.5, 0), App.Vector(-42, -117.2, 0)),  # 6
    Part.ArcOfCircle(Part.Circle(App.Vector(-55.5, -112, 0), App.Vector(0, 0, 1), 14.5), math.radians(-21), math.radians(49)),  # 7
    Part.ArcOfCircle(Part.Circle(App.Vector(-64.4, -122.3, 0), App.Vector(0, 0, 1), 28.1), math.radians(49), math.radians(129)),  # 8
    Part.LineSegment(App.Vector(-82, -100.4, 0), App.Vector(-80.7, -101.9, 0)),  # 9
    Part.ArcOfCircle(Part.Circle(App.Vector(-64.4, -122.3, 0), App.Vector(0, 0, 1), 26.1), math.radians(49), math.radians(129)),  # 10
    Part.ArcOfCircle(Part.Circle(App.Vector(-55.5, -112, 0), App.Vector(0, 0, 1), 12.5), math.radians(-21), math.radians(49)),  # 11
], False)
sketch6.addConstraint([
    Sketcher.Constraint("Coincident", 0, 2, 1, 1),
    Sketcher.Constraint("Tangent", 1, 2, 2, 1),
    Sketcher.Constraint("Coincident", 2, 2, 3, 1),
    Sketcher.Constraint("Coincident", 3, 2, 4, 2),
    Sketcher.Constraint("Tangent", 4, 1, 5, 2),
    Sketcher.Constraint("Coincident", 5, 1, 0, 1),
    Sketcher.Constraint("Coincident", 6, 2, 7, 1),
    Sketcher.Constraint("Tangent", 7, 2, 8, 1),
    Sketcher.Constraint("Coincident", 8, 2, 9, 1),
    Sketcher.Constraint("Coincident", 9, 2, 10, 2),
    Sketcher.Constraint("Tangent", 10, 1, 11, 2),
    Sketcher.Constraint("Coincident", 11, 1, 6, 1),
    Sketcher.Constraint("Coincident", 4, 3, 2, 3),
    Sketcher.Constraint("Coincident", 5, 3, 1, 3),
    Sketcher.Constraint("Coincident", 10, 3, 8, 3),
    Sketcher.Constraint("Coincident", 11, 3, 7, 3),
    Sketcher.Constraint("Equal", 2, 7),
    Sketcher.Constraint("Equal", 1, 8),
    Sketcher.Constraint("Equal", 5, 10),
    Sketcher.Constraint("Parallel", 0, 9),
    Sketcher.Constraint("Distance", 0, Q("2 mm")),
    Sketcher.Constraint("Radius", 2, Q("14.504078 mm")),
    Sketcher.Constraint("Radius", 1, Q("28.096152 mm")),
    Sketcher.Constraint("DistanceX", 0, 2, 4, 3, Q("5.640602 mm")),
    Sketcher.Constraint("DistanceY", 1, 2, 1, 3, Q("13.311899 mm")),
    Sketcher.Constraint("DistanceY", 2, 2, 1, 2, Q("7.464202 mm")),
    Sketcher.Constraint("DistanceX", 3, 2, 1, 3, Q("10.072701 mm")),
    Sketcher.Constraint("DistanceY", 11, 1, 10, 1, Q("13.9875 mm")),
    Sketcher.Constraint("DistanceY", 2, 3, -1, 1, Q("147.51217 mm")),
    Sketcher.Constraint("DistanceY", 7, 3, -1, 1, Q("111.95708 mm")),
    Sketcher.Constraint("DistanceX", 8, 3, -1, 1, Q("64.374781 mm")),
    Sketcher.Constraint("DistanceY", 8, 3, -1, 1, Q("122.268732 mm")),
    Sketcher.Constraint("DistanceX", 1, 2, -1, 1, Q("112.492971 mm")),
    Sketcher.Constraint("DistanceX", 6, 2, -1, 1, Q("41.987888 mm")),
    Sketcher.Constraint("DistanceX", 8, 2, -1, 1, Q("81.985019 mm")),
    Sketcher.Constraint("DistanceX", 9, 2, -1, 1, Q("80.73145 mm")),
])
sketch6.setExpression("Constraints[20]", "Params.sketch6_length")
pad5 = body.newObject("PartDesign::Pad", "Pad004")
pad5.Profile = sketch6
pad5.setExpression("Length", "Params.pad5_length")

# Sketch on XY plane
sketch7 = body.newObject("Sketcher::SketchObject", "Sketch006")
sketch7.AttachmentSupport = (doc.getObject("XY_Plane"), [""])
sketch7.MapMode = "FlatFace"
sketch7.AttachmentOffset = App.Placement(App.Vector(0, 0, 14), App.Rotation())
sketch7.addGeometry([
    Part.Circle(App.Vector(-88.9, -160.4, 0), App.Vector(0, 0, 1), 1.5),
    Part.Circle(App.Vector(-44.8, -124.3, 0), App.Vector(0, 0, 1), 1.5),
], False)
sketch7.addConstraint([
    Sketcher.Constraint("Equal", 0, 1),
    Sketcher.Constraint("Diameter", 0, Q("3 mm")),
    Sketcher.Constraint("DistanceX", 0, 3, -1, 1, Q("88.877799 mm")),
    Sketcher.Constraint("DistanceY", 0, 3, -1, 1, Q("160.412808 mm")),
    Sketcher.Constraint("DistanceX", 1, 3, -1, 1, Q("44.832341 mm")),
    Sketcher.Constraint("DistanceY", 1, 3, -1, 1, Q("124.255324 mm")),
])
sketch7.setExpression("Constraints[1]", "Params.sketch7_diameter")
doc.recompute()
hole = body.newObject("PartDesign::Hole", "Hole")
hole.Profile = sketch7
hole.ThreadType = "None"
hole.setExpression("Diameter", "Params.hole_diameter")
hole.DepthType = "ThroughAll"

doc.recompute()
